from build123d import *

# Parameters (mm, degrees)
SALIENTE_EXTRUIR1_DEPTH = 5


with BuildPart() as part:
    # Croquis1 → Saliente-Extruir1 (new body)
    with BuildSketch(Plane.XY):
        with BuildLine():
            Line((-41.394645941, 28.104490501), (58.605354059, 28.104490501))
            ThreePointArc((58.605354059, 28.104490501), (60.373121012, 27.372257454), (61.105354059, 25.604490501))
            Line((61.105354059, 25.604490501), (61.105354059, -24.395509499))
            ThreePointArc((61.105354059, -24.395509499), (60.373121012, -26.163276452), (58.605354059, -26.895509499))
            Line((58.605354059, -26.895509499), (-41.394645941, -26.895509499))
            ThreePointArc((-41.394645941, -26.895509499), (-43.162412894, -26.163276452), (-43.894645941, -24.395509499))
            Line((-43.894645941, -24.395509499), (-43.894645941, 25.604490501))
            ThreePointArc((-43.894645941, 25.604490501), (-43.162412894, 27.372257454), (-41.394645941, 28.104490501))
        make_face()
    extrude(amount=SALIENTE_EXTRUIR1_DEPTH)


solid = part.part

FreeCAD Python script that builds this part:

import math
import FreeCAD as App
import Part
import Sketcher
from FreeCAD import Vector

doc = App.newDocument("Part")
body = doc.addObject("PartDesign::Body", "Body")

# Sketch on XY plane
sketch1 = body.newObject("Sketcher::SketchObject", "Sketch")
sketch1.AttachmentSupport = (doc.getObject("XY_Plane"), [""])
sketch1.MapMode = "FlatFace"
sketch1.addGeometry([
    Part.LineSegment(Vector(58.6, 28.1, 0), Vector(-41.4, 28.1, 0)),  # 0
    Part.ArcOfCircle(Part.Circle(Vector(-41.4, 25.6, 0), Vector(0, 0, 1), 2.5), math.radians(90), math.radians(180)),  # 1
    Part.LineSegment(Vector(-43.9, 25.6, 0), Vector(-43.9, -24.4, 0)),  # 2
    Part.ArcOfCircle(Part.Circle(Vector(-41.4, -24.4, 0), Vector(0, 0, 1), 2.5), math.radians(180), math.radians(270)),  # 3
    Part.LineSegment(Vector(-41.4, -26.9, 0), Vector(58.6, -26.9, 0)),  # 4
    Part.ArcOfCircle(Part.Circle(Vector(58.6, -24.4, 0), Vector(0, 0, 1), 2.5), math.radians(-90), math.radians(0)),  # 5
    Part.LineSegment(Vector(61.1, -24.4, 0), Vector(61.1, 25.6, 0)),  # 6
    Part.ArcOfCircle(Part.Circle(Vector(58.6, 25.6, 0), Vector(0, 0, 1), 2.5), math.radians(0), math.radians(90)),  # 7
], False)
sketch1.addConstraint([
    Sketcher.Constraint("Tangent", 0, 2, 1, 1),
    Sketcher.Constraint("Tangent", 1, 2, 2, 1),
    Sketcher.Constraint("Tangent", 2, 2, 3, 1),
    Sketcher.Constraint("Tangent", 3, 2, 4, 1),
    Sketcher.Constraint("Tangent", 4, 2, 5, 1),
    Sketcher.Constraint("Tangent", 5, 2, 6, 1),
    Sketcher.Constraint("Tangent", 6, 2, 7, 1),
    Sketcher.Constraint("Tangent", 7, 2, 0, 1),
    Sketcher.Constraint("Horizontal", 0),
    Sketcher.Constraint("Vertical", 2),
    Sketcher.Constraint("Horizontal", 4),
    Sketcher.Constraint("Vertical", 6),
    Sketcher.Constraint("Equal", 1, 3),
    Sketcher.Constraint("Equal", 3, 5),
    Sketcher.Constraint("Equal", 5, 7),
    Sketcher.Constraint("Radius", 1, 2.5),
    Sketcher.Constraint("DistanceX", 0, 2, 0, 1, 100.0),
    Sketcher.Constraint("DistanceY", 2, 2, 2, 1, 50.0),
    Sketcher.Constraint("DistanceY", -1, 1, 1, 3, 25.604491),
    Sketcher.Constraint("DistanceX", 1, 3, -1, 1, 41.394646),
])
pad1 = body.newObject("PartDesign::Pad", "Pad")
pad1.Profile = sketch1
pad1.Length = 5

doc.recompute()
